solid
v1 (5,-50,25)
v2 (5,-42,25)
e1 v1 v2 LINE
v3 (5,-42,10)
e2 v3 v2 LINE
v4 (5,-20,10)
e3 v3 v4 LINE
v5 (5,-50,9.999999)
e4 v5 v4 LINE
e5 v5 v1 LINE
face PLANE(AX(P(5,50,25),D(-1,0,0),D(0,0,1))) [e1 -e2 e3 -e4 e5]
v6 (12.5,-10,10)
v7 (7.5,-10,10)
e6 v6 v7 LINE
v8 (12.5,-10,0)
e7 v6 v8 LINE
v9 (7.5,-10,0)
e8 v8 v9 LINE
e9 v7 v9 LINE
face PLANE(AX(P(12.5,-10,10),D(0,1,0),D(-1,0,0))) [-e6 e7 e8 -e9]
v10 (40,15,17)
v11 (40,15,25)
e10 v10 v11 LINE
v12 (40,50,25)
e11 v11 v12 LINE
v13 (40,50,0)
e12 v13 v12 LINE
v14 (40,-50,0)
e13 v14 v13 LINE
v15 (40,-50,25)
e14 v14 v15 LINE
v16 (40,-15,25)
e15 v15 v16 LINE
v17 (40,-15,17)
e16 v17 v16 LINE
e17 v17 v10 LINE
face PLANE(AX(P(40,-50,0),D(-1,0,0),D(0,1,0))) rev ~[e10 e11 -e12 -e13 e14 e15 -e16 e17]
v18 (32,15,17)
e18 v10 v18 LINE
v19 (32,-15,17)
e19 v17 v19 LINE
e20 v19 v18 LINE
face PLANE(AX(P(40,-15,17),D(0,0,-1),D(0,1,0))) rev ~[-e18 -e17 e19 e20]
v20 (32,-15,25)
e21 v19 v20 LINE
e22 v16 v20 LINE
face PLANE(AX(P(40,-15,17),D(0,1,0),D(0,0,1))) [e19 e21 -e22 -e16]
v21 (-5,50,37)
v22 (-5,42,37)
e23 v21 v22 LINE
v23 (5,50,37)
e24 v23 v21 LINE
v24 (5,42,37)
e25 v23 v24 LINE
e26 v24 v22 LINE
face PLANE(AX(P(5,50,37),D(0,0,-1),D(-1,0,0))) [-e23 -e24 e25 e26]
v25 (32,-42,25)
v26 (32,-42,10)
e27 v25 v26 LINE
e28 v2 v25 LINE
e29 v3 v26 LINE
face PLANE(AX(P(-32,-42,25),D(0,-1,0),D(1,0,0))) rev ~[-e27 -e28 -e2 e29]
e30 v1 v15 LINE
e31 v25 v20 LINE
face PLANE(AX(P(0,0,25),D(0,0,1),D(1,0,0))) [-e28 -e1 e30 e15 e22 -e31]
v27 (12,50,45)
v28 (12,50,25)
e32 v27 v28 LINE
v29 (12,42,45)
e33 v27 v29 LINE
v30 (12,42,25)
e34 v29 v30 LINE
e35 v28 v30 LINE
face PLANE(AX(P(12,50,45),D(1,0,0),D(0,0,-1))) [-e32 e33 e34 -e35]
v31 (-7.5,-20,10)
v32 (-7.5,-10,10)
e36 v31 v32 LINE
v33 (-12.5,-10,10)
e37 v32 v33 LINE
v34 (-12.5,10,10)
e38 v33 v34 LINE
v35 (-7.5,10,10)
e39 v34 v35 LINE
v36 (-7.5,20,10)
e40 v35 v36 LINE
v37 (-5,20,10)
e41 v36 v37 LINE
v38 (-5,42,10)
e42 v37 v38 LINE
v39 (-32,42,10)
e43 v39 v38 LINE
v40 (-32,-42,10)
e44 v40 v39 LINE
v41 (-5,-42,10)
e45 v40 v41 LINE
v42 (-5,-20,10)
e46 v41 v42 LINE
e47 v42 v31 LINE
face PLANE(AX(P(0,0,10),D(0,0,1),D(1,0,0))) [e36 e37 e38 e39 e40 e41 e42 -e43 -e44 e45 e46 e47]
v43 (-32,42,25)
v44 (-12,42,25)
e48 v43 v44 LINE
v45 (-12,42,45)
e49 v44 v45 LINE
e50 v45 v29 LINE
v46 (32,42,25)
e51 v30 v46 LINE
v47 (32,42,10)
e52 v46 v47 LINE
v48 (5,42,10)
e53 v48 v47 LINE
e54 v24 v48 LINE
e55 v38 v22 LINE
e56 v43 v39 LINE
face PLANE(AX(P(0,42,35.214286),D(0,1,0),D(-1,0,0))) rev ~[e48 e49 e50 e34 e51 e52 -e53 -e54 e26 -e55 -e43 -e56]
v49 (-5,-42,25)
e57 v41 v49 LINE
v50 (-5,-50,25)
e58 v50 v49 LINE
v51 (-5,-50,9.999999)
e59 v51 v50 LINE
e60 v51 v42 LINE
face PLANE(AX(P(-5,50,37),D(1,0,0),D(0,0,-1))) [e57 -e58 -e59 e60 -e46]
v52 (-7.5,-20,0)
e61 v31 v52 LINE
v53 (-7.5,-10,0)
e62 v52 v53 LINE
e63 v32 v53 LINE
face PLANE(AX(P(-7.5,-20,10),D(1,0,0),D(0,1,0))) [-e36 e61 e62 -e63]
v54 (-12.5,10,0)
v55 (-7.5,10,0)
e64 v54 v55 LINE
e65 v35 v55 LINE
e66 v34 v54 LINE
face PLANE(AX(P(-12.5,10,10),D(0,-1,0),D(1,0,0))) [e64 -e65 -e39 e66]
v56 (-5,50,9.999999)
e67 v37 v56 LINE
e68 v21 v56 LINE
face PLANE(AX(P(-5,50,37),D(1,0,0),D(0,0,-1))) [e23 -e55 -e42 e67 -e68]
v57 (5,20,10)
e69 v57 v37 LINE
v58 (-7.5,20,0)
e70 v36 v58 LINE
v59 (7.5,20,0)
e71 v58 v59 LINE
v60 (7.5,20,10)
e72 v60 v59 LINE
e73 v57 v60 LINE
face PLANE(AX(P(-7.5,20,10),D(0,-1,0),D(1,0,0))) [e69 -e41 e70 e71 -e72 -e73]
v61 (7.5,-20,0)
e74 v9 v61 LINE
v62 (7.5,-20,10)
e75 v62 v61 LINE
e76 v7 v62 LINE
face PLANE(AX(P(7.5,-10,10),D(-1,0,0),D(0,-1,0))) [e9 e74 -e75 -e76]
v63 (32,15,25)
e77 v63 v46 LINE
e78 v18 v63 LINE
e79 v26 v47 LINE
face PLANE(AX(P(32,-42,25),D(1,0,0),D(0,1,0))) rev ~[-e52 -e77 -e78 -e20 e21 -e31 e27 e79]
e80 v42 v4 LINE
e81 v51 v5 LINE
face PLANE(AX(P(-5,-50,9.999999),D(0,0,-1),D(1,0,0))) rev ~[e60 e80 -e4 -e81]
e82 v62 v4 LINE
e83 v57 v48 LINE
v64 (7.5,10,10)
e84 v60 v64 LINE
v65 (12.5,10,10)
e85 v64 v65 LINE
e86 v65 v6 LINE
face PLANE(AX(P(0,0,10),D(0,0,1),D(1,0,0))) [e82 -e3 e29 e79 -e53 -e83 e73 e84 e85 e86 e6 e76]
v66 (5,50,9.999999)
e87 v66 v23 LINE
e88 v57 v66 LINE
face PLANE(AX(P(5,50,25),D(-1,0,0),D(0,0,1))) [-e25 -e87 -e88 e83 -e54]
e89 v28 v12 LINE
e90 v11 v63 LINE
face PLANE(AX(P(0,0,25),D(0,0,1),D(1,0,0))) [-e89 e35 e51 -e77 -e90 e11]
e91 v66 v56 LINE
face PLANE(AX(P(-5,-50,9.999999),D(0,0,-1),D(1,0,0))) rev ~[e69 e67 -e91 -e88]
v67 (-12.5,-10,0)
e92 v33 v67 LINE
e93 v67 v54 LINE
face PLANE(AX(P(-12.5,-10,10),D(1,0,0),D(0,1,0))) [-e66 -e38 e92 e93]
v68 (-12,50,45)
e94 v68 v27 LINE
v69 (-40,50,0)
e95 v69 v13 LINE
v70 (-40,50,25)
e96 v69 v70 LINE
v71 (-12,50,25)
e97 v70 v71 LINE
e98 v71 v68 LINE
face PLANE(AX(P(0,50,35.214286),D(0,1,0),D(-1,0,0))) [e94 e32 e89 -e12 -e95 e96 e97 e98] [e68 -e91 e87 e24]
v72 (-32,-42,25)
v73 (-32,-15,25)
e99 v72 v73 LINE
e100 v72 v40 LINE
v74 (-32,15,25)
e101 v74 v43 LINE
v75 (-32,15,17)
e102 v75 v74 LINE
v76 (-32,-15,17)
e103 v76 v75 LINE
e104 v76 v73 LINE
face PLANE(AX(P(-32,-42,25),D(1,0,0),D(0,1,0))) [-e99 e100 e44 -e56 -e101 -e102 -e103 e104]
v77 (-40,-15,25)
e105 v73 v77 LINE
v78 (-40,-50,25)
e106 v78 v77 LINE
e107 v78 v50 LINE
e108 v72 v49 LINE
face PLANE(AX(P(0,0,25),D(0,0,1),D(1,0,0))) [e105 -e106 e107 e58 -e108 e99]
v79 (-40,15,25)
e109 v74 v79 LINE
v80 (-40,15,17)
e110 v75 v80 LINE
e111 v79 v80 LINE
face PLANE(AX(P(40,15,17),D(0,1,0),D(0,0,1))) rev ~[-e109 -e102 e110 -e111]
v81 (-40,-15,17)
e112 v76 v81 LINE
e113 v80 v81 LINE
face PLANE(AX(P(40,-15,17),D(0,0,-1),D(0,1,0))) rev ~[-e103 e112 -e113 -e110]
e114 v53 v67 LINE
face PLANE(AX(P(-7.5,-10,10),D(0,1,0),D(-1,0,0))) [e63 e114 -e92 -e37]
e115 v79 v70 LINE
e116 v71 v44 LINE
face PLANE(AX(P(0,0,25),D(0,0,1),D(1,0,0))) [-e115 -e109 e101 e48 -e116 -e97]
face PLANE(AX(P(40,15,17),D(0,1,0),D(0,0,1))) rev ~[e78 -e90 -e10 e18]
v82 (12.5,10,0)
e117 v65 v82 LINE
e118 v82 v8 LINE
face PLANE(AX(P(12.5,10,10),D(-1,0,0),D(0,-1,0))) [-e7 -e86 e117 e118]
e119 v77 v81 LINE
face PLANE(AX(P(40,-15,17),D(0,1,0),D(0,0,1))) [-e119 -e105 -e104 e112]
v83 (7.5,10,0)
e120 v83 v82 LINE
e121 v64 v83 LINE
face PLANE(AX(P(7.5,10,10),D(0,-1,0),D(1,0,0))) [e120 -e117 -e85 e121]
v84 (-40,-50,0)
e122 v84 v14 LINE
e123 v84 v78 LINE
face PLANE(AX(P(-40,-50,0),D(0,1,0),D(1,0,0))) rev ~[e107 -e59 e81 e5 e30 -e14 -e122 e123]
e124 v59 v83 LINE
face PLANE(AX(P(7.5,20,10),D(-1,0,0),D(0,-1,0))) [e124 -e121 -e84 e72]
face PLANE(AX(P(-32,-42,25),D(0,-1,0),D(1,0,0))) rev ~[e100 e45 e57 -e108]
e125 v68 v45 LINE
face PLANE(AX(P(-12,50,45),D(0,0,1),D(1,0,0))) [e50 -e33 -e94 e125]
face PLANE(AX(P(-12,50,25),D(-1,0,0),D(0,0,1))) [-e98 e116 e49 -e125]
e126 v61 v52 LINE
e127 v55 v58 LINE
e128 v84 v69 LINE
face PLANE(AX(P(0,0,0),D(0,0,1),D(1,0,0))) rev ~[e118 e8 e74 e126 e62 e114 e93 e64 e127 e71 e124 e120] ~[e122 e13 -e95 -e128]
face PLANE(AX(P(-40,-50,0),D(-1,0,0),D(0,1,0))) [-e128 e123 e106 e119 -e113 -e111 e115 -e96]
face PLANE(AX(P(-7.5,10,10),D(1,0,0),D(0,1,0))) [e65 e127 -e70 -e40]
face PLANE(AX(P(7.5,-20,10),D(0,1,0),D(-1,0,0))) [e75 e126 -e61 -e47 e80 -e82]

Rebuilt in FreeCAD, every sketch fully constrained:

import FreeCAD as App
import Part
import Sketcher

V = App.Vector


def add_polygon(sketch, points):
    """Adds a closed chain of lines whose ends are joined by coincident constraints."""
    first, n = sketch.GeometryCount, len(points)
    for a, b in zip(points, points[1:] + points[:1]):
        sketch.addGeometry(Part.LineSegment(App.Vector(*a, 0), App.Vector(*b, 0)), False)
    for i in range(n):
        sketch.addConstraint(Sketcher.Constraint("Coincident", first + i, 2, first + (i + 1) % n, 1))

doc = App.newDocument("Part")
body = doc.addObject("PartDesign::Body", "Body")

sketch1 = doc.addObject("Sketcher::SketchObject", "Sketch")
body.addObject(sketch1)
sketch1.AttachmentSupport = (doc.XY_Plane, [""])
sketch1.MapMode = "FlatFace"
add_polygon(sketch1, [(-40, 50), (-40, -50), (40, -50), (40, 50)])
sketch1.addConstraint([
    Sketcher.Constraint("Vertical", 0),
    Sketcher.Constraint("Horizontal", 1),
    Sketcher.Constraint("Vertical", 2),
    Sketcher.Constraint("Horizontal", 3),
    Sketcher.Constraint("Symmetric", 0, 2, 2, 2, -1, 1),
    Sketcher.Constraint("DistanceX", 1, 1, 1, 2, 80.0),
    Sketcher.Constraint("DistanceY", 0, 2, 0, 1, 100.0),
])
pad1 = doc.addObject("PartDesign::Pad", "Pad")
body.addObject(pad1)
pad1.Profile = sketch1
pad1.Length = 25

sketch2 = doc.addObject("Sketcher::SketchObject", "Sketch001")
body.addObject(sketch2)
sketch2.AttachmentSupport = (doc.XY_Plane, [""])
sketch2.MapMode = "FlatFace"
sketch2.AttachmentOffset = App.Placement(V(0, 0, 25), App.Rotation())
add_polygon(sketch2, [(-32, 42), (-32, -42), (32, -42), (32, 42)])
sketch2.addConstraint([
    Sketcher.Constraint("Vertical", 0),
    Sketcher.Constraint("Horizontal", 1),
    Sketcher.Constraint("Vertical", 2),
    Sketcher.Constraint("Horizontal", 3),
    Sketcher.Constraint("Symmetric", 0, 2, 2, 2, -1, 1),
    Sketcher.Constraint("DistanceX", 1, 1, 1, 2, 64.0),
    Sketcher.Constraint("DistanceY", 0, 2, 0, 1, 84.0),
])
pocket1 = doc.addObject("PartDesign::Pocket", "Pocket")
body.addObject(pocket1)
pocket1.Profile = sketch2
pocket1.Length = 15

sketch3 = doc.addObject("Sketcher::SketchObject", "Sketch002")
body.addObject(sketch3)
sketch3.AttachmentSupport = (doc.XZ_Plane, [""])
sketch3.MapMode = "FlatFace"
sketch3.AttachmentOffset = App.Placement(V(0, 0, 50), App.Rotation())
add_polygon(sketch3, [(-5, 38), (-5, 10), (5, 10), (5, 38)])
sketch3.addConstraint([
    Sketcher.Constraint("Vertical", 0),
    Sketcher.Constraint("Horizontal", 1),
    Sketcher.Constraint("Vertical", 2),
    Sketcher.Constraint("Horizontal", 3),
    Sketcher.Constraint("DistanceX", 1, 1, 1, 2, 10.0),
    Sketcher.Constraint("DistanceX", 0, 2, -1, 1, 5.0),
    Sketcher.Constraint("DistanceY", -1, 1, 0, 2, 9.999999),
    Sketcher.Constraint("DistanceY", 0, 2, 0, 1, 27.891991),
])
pocket2 = doc.addObject("PartDesign::Pocket", "Pocket001")
body.addObject(pocket2)
pocket2.Profile = sketch3
pocket2.Type = "ThroughAll"

sketch4 = doc.addObject("Sketcher::SketchObject", "Sketch003")
body.addObject(sketch4)
sketch4.AttachmentSupport = (doc.YZ_Plane, [""])
sketch4.MapMode = "FlatFace"
sketch4.AttachmentOffset = App.Placement(V(0, 0, 40), App.Rotation())
add_polygon(sketch4, [(-15, 36), (-15, 17), (15, 17), (15, 36)])
sketch4.addConstraint([
    Sketcher.Constraint("Vertical", 0),
    Sketcher.Constraint("Horizontal", 1),
    Sketcher.Constraint("Vertical", 2),
    Sketcher.Constraint("Horizontal", 3),
    Sketcher.Constraint("DistanceX", 1, 1, 1, 2, 30.0),
    Sketcher.Constraint("DistanceX", 0, 2, -1, 1, 15.0),
    Sketcher.Constraint("DistanceY", -1, 1, 0, 2, 17.0),
    Sketcher.Constraint("DistanceY", 0, 2, 0, 1, 18.544697),
])
pocket3 = doc.addObject("PartDesign::Pocket", "Pocket002")
body.addObject(pocket3)
pocket3.Profile = sketch4
pocket3.Type = "ThroughAll"

sketch5 = doc.addObject("Sketcher::SketchObject", "Sketch004")
body.addObject(sketch5)
sketch5.AttachmentSupport = (doc.XZ_Plane, [""])
sketch5.MapMode = "FlatFace"
sketch5.AttachmentOffset = App.Placement(V(0, 0, -50), App.Rotation())
add_polygon(sketch5, [(-12, 25), (-12, 45), (12, 45), (12, 25), (5, 25), (5, 37), (-5, 37), (-5, 25)])
sketch5.addConstraint([
    Sketcher.Constraint("Vertical", 0),
    Sketcher.Constraint("Horizontal", 1),
    Sketcher.Constraint("Vertical", 2),
    Sketcher.Constraint("Horizontal", 3),
    Sketcher.Constraint("Vertical", 4),
    Sketcher.Constraint("Horizontal", 5),
    Sketcher.Constraint("Vertical", 6),
    Sketcher.Constraint("Horizontal", 7),
    Sketcher.Constraint("Symmetric", 3, 2, 6, 2, -2),
    Sketcher.Constraint("Equal", 3, 7),
    Sketcher.Constraint("DistanceX", 1, 1, 1, 2, 24.0),
    Sketcher.Constraint("DistanceX", 3, 2, 3, 1, 7.0),
    Sketcher.Constraint("DistanceY", 0, 1, 0, 2, 20.0),
    Sketcher.Constraint("DistanceY", 4, 1, 4, 2, 12.0),
    Sketcher.Constraint("DistanceY", -1, 1, 0, 2, 45.0),
])
pad2 = doc.addObject("PartDesign::Pad", "Pad001")
body.addObject(pad2)
pad2.Profile = sketch5
pad2.Length = 8

sketch6 = doc.addObject("Sketcher::SketchObject", "Sketch005")
body.addObject(sketch6)
sketch6.AttachmentSupport = (doc.XY_Plane, [""])
sketch6.MapMode = "FlatFace"
sketch6.AttachmentOffset = App.Placement(V(0, 0, 10), App.Rotation())
add_polygon(sketch6, [(-8, 20), (-8, 10), (-12, 10), (-12, -10), (-8, -10), (-8, -20), (8, -20), (8, -10), (12, -10), (12, 10), (8, 10), (8, 20)])
sketch6.addConstraint([
    Sketcher.Constraint("Vertical", 0),
    Sketcher.Constraint("Horizontal", 1),
    Sketcher.Constraint("Vertical", 2),
    Sketcher.Constraint("Horizontal", 3),
    Sketcher.Constraint("Vertical", 4),
    Sketcher.Constraint("Horizontal", 5),
    Sketcher.Constraint("Vertical", 6),
    Sketcher.Constraint("Horizontal", 7),
    Sketcher.Constraint("Vertical", 8),
    Sketcher.Constraint("Horizontal", 9),
    Sketcher.Constraint("Vertical", 10),
    Sketcher.Constraint("Horizontal", 11),
    Sketcher.Constraint("Symmetric", 0, 2, 6, 2, -1, 1),
    Sketcher.Constraint("Symmetric", 2, 2, 8, 2, -1, 1),
    Sketcher.Constraint("Symmetric", 4, 2, 10, 2, -1, 1),
    Sketcher.Constraint("Symmetric", 3, 2, 6, 2, -2),
    Sketcher.Constraint("DistanceX", 1, 2, 1, 1, 5.0),
    Sketcher.Constraint("DistanceX", 5, 1, 5, 2, 15.0),
    Sketcher.Constraint("DistanceY", 0, 2, 0, 1, 10.0),
    Sketcher.Constraint("DistanceY", 2, 2, 2, 1, 20.0),
])
pocket4 = doc.addObject("PartDesign::Pocket", "Pocket003")
body.addObject(pocket4)
pocket4.Profile = sketch6
pocket4.Length = 10

doc.recompute()
